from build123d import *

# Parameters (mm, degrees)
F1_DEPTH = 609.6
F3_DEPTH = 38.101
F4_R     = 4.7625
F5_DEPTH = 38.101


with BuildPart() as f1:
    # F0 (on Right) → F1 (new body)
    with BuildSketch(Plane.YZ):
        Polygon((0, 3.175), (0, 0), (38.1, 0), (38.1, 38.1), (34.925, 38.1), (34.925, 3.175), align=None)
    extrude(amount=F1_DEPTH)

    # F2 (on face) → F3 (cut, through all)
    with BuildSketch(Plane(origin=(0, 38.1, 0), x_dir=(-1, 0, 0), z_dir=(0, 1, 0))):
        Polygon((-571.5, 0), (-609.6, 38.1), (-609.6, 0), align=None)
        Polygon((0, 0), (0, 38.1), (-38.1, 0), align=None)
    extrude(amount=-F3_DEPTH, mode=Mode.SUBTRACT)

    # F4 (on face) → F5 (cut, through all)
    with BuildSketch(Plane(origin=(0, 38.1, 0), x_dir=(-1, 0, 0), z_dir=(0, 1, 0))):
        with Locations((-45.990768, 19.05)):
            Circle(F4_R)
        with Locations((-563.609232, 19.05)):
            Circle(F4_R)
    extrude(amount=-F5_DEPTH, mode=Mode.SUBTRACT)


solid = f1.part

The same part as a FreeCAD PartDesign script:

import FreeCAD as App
import Part
import Sketcher
from FreeCAD import Vector
Q = App.Units.Quantity


def add_polygon(sketch, points):
    """Adds a closed chain of lines whose ends are joined by coincident constraints."""
    first, n = sketch.GeometryCount, len(points)
    for a, b in zip(points, points[1:] + points[:1]):
        sketch.addGeometry(Part.LineSegment(App.Vector(*a, 0), App.Vector(*b, 0)), False)
    for i in range(n):
        sketch.addConstraint(Sketcher.Constraint("Coincident", first + i, 2, first + (i + 1) % n, 1))

doc = App.newDocument("Part")
body = doc.addObject("PartDesign::Body", "Body")

# Sketch on YZ plane
sketch1 = body.newObject("Sketcher::SketchObject", "Sketch")
sketch1.AttachmentSupport = (doc.getObject("YZ_Plane"), [""])
sketch1.MapMode = "FlatFace"
add_polygon(sketch1, [(0, 3.175), (0, 0), (38.1, 0), (38.1, 38.1), (34.925, 38.1), (34.925, 3.175)])  # lines 0-5
sketch1.addConstraint(Sketcher.Constraint("Vertical", 0))
sketch1.addConstraint(Sketcher.Constraint("Horizontal", 1))
sketch1.addConstraint(Sketcher.Constraint("Vertical", 2))
sketch1.addConstraint(Sketcher.Constraint("Horizontal", 3))
sketch1.addConstraint(Sketcher.Constraint("Vertical", 4))
sketch1.addConstraint(Sketcher.Constraint("Horizontal", 5))
sketch1.addConstraint(Sketcher.Constraint("Coincident", 0, 2, -1, 1))
sketch1.addConstraint(Sketcher.Constraint("Equal", 3, 0))
sketch1.addConstraint(Sketcher.Constraint("Equal", 1, 2))
sketch1.addConstraint(Sketcher.Constraint("DistanceX", 1, 1, 1, 2, Q("1.5 in")))
sketch1.addConstraint(Sketcher.Constraint("DistanceX", 3, 2, 3, 1, Q("0.125 in")))
pad1 = body.newObject("PartDesign::Pad", "Pad")
pad1.Profile = sketch1
pad1.Length = Q("24 in")

# Sketch on XZ plane
sketch2 = body.newObject("Sketcher::SketchObject", "Sketch001")
sketch2.AttachmentSupport = (doc.getObject("XZ_Plane"), [""])
sketch2.MapMode = "FlatFace"
sketch2.AttachmentOffset = App.Placement(Vector(0, 0, -1.5 * 25.4), App.Rotation())
add_polygon(sketch2, [(571.5, 0), (609.6, 38.1), (609.6, 0)])  # lines 0-2
add_polygon(sketch2, [(0, 0), (0, 38.1), (38.1, 0)])  # lines 3-5
sketch2.addConstraint(Sketcher.Constraint("Vertical", 1))
sketch2.addConstraint(Sketcher.Constraint("Horizontal", 2))
sketch2.addConstraint(Sketcher.Constraint("Vertical", 3))
sketch2.addConstraint(Sketcher.Constraint("Horizontal", 5))
sketch2.addConstraint(Sketcher.Constraint("Coincident", 5, 2, -1, 1))
sketch2.addConstraint(Sketcher.Constraint("PointOnObject", 1, 2, -1))
sketch2.addConstraint(Sketcher.Constraint("Perpendicular", 0, 4))
sketch2.addConstraint(Sketcher.Constraint("Horizontal", 0, 2, 3, 2))
sketch2.addConstraint(Sketcher.Constraint("Equal", 2, 5))
sketch2.addConstraint(Sketcher.Constraint("DistanceX", 2, 2, 2, 1, Q("1.5 in")))
sketch2.addConstraint(Sketcher.Constraint("DistanceX", -1, 1, 0, 2, Q("24 in")))
pocket1 = body.newObject("PartDesign::Pocket", "Pocket")
pocket1.Profile = sketch2
pocket1.Type = "ThroughAll"
pocket1.Reversed = True

# Sketch on XZ plane
sketch3 = body.newObject("Sketcher::SketchObject", "Sketch002")
sketch3.AttachmentSupport = (doc.getObject("XZ_Plane"), [""])
sketch3.MapMode = "FlatFace"
sketch3.AttachmentOffset = App.Placement(Vector(0, 0, -1.5 * 25.4), App.Rotation())
sketch3.addGeometry(Part.Circle(Vector(45.990768, 19.05, 0), Vector(0, 0, 1), 4.7625), False)
sketch3.addGeometry(Part.Circle(Vector(563.609232, 19.05, 0), Vector(0, 0, 1), 4.7625), False)
sketch3.addConstraint(Sketcher.Constraint("Equal", 0, 1))
sketch3.addConstraint(Sketcher.Constraint("Horizontal", 0, 3, 1, 3))
sketch3.addConstraint(Sketcher.Constraint("Diameter", 0, Q("0.375 in")))
sketch3.addConstraint(Sketcher.Constraint("DistanceY", -1, 1, 0, 3, Q("0.75 in")))
sketch3.addConstraint(Sketcher.Constraint("DistanceX", -1, 1, 0, 3, 45.990768))
sketch3.addConstraint(Sketcher.Constraint("DistanceX", -1, 1, 1, 3, 563.609232))
pocket2 = body.newObject("PartDesign::Pocket", "Pocket001")
pocket2.Profile = sketch3
pocket2.Type = "ThroughAll"
pocket2.Reversed = True

doc.recompute()
